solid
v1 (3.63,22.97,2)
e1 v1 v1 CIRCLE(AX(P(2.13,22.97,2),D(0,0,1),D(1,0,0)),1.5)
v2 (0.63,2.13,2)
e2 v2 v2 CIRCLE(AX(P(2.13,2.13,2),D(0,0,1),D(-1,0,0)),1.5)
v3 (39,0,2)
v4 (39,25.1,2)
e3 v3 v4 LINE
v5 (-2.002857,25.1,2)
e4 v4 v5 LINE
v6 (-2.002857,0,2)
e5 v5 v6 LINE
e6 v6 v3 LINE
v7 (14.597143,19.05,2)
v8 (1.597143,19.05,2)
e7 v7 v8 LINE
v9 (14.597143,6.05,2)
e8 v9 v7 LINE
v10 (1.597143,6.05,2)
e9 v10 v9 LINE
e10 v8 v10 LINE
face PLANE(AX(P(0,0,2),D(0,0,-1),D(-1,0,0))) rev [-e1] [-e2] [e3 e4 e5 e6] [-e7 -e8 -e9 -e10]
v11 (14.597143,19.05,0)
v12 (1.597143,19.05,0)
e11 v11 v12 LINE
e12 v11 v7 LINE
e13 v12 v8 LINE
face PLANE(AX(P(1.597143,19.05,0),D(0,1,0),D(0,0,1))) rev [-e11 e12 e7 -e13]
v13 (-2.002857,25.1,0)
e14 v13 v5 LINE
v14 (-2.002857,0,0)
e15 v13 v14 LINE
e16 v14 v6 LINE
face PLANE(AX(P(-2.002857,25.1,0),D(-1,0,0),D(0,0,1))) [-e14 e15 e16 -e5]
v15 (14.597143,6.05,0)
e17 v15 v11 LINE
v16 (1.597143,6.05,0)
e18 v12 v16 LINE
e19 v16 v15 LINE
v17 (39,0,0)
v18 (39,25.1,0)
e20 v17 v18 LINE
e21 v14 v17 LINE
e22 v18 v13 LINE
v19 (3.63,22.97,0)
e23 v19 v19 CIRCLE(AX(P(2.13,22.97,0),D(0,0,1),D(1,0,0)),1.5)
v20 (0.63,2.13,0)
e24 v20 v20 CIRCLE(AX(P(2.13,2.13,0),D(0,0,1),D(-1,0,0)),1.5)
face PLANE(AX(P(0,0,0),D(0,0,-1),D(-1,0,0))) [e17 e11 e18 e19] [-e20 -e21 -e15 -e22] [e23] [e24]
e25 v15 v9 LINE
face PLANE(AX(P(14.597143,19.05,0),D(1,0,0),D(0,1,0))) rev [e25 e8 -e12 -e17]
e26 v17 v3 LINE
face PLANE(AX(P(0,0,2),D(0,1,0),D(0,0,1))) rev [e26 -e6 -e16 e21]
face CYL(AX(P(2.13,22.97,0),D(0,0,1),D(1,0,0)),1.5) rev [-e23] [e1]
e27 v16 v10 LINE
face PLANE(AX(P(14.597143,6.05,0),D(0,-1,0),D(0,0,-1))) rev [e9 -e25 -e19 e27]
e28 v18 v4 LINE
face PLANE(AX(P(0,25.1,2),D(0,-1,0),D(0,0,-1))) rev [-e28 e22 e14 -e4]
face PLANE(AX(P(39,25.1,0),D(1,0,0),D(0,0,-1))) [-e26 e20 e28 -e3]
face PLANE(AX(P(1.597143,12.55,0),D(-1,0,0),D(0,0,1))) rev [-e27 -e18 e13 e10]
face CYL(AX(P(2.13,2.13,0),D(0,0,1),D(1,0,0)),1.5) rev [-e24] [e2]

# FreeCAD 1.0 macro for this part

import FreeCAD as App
import Part
import Sketcher
from FreeCAD import Vector


def add_polygon(sketch, points):
    """Adds a closed chain of lines whose ends are joined by coincident constraints."""
    first, n = sketch.GeometryCount, len(points)
    for a, b in zip(points, points[1:] + points[:1]):
        sketch.addGeometry(Part.LineSegment(App.Vector(*a, 0), App.Vector(*b, 0)), False)
    for i in range(n):
        sketch.addConstraint(Sketcher.Constraint("Coincident", first + i, 2, first + (i + 1) % n, 1))

doc = App.newDocument("Part")
body = doc.addObject("PartDesign::Body", "Body")

sketch1 = body.newObject("Sketcher::SketchObject", "Sketch")
sketch1.AttachmentSupport = (doc.getObject("XY_Plane"), [""])
sketch1.MapMode = "FlatFace"
add_polygon(sketch1, [(0, 25), (0, 0), (35, 0), (35, 25)])
sketch1.addConstraint(Sketcher.Constraint("Vertical", 0))
sketch1.addConstraint(Sketcher.Constraint("Horizontal", 1))
sketch1.addConstraint(Sketcher.Constraint("Vertical", 2))
sketch1.addConstraint(Sketcher.Constraint("Horizontal", 3))
sketch1.addConstraint(Sketcher.Constraint("Coincident", 0, 2, -1, 1))
sketch1.addConstraint(Sketcher.Constraint("DistanceX", 1, 1, 1, 2, 35.0))
sketch1.addConstraint(Sketcher.Constraint("DistanceY", 0, 2, 0, 1, 25.1))
pad1 = body.newObject("PartDesign::Pad", "Pad")
pad1.Profile = sketch1
pad1.Length = 2

sketch2 = body.newObject("Sketcher::SketchObject", "Sketch001")
sketch2.AttachmentSupport = (doc.getObject("XY_Plane"), [""])
sketch2.MapMode = "FlatFace"
sketch2.AttachmentOffset = App.Placement(Vector(0, 0, 2), App.Rotation())
sketch2.addGeometry(Part.Circle(Vector(2.1, 23, 0), Vector(0, 0, 1), 1.5), False)
sketch2.addGeometry(Part.Circle(Vector(2.1, 2.1, 0), Vector(0, 0, 1), 1.5), False)
sketch2.addConstraint(Sketcher.Constraint("Equal", 0, 1))
sketch2.addConstraint(Sketcher.Constraint("Vertical", 0, 3, 1, 3))
sketch2.addConstraint(Sketcher.Constraint("Diameter", 0, 3.0))
sketch2.addConstraint(Sketcher.Constraint("DistanceX", -1, 1, 0, 3, 2.13))
sketch2.addConstraint(Sketcher.Constraint("DistanceY", -1, 1, 0, 3, 22.97))
sketch2.addConstraint(Sketcher.Constraint("DistanceY", -1, 1, 1, 3, 2.13))
pocket1 = body.newObject("PartDesign::Pocket", "Pocket")
pocket1.Profile = sketch2
pocket1.Length = 2

sketch3 = body.newObject("Sketcher::SketchObject", "Sketch002")
sketch3.AttachmentSupport = (doc.getObject("XY_Plane"), [""])
sketch3.MapMode = "FlatFace"
sketch3.AttachmentOffset = App.Placement(Vector(0, 0, 2), App.Rotation())
add_polygon(sketch3, [(-2, 25.1), (-2, 0), (0, 0), (0, 25.1)])
sketch3.addConstraint(Sketcher.Constraint("Vertical", 0))
sketch3.addConstraint(Sketcher.Constraint("Horizontal", 1))
sketch3.addConstraint(Sketcher.Constraint("Vertical", 2))
sketch3.addConstraint(Sketcher.Constraint("Horizontal", 3))
sketch3.addConstraint(Sketcher.Constraint("Coincident", 1, 2, -1, 1))
sketch3.addConstraint(Sketcher.Constraint("DistanceY", 0, 2, 0, 1, 25.1))
sketch3.addConstraint(Sketcher.Constraint("DistanceX", 1, 1, 1, 2, 2.002857))
pad2 = body.newObject("PartDesign::Pad", "Pad001")
pad2.Profile = sketch3
pad2.Length = 2
pad2.Reversed = True

sketch4 = body.newObject("Sketcher::SketchObject", "Sketch003")
sketch4.AttachmentSupport = (doc.getObject("XY_Plane"), [""])
sketch4.MapMode = "FlatFace"
sketch4.AttachmentOffset = App.Placement(Vector(0, 0, 2), App.Rotation())
add_polygon(sketch4, [(2, 19), (2, 6), (15, 6), (15, 19)])
sketch4.addConstraint(Sketcher.Constraint("Vertical", 0))
sketch4.addConstraint(Sketcher.Constraint("Horizontal", 1))
sketch4.addConstraint(Sketcher.Constraint("Vertical", 2))
sketch4.addConstraint(Sketcher.Constraint("Horizontal", 3))
sketch4.addConstraint(Sketcher.Constraint("Equal", 3, 0))
sketch4.addConstraint(Sketcher.Constraint("DistanceX", 1, 1, 1, 2, 13.0))
sketch4.addConstraint(Sketcher.Constraint("DistanceY", -1, 1, 0, 2, 6.05))
sketch4.addConstraint(Sketcher.Constraint("DistanceX", -1, 1, 0, 2, 1.597143))
pocket2 = body.newObject("PartDesign::Pocket", "Pocket001")
pocket2.Profile = sketch4
pocket2.Length = 2

sketch5 = body.newObject("Sketcher::SketchObject", "Sketch004")
sketch5.AttachmentSupport = (doc.getObject("XY_Plane"), [""])
sketch5.MapMode = "FlatFace"
sketch5.AttachmentOffset = App.Placement(Vector(0, 0, 2), App.Rotation())
add_polygon(sketch5, [(35, 25.1), (35, 0), (39, 0), (39, 25.1)])
sketch5.addConstraint(Sketcher.Constraint("Vertical", 0))
sketch5.addConstraint(Sketcher.Constraint("Horizontal", 1))
sketch5.addConstraint(Sketcher.Constraint("Vertical", 2))
sketch5.addConstraint(Sketcher.Constraint("Horizontal", 3))
sketch5.addConstraint(Sketcher.Constraint("PointOnObject", 0, 2, -1))
sketch5.addConstraint(Sketcher.Constraint("DistanceX", 1, 1, 1, 2, 4.0))
sketch5.addConstraint(Sketcher.Constraint("DistanceY", 0, 2, 0, 1, 25.1))
sketch5.addConstraint(Sketcher.Constraint("DistanceX", -1, 1, 0, 2, 35.0))
pad3 = body.newObject("PartDesign::Pad", "Pad002")
pad3.Profile = sketch5
pad3.Length = 2
pad3.Reversed = True

doc.recompute()
